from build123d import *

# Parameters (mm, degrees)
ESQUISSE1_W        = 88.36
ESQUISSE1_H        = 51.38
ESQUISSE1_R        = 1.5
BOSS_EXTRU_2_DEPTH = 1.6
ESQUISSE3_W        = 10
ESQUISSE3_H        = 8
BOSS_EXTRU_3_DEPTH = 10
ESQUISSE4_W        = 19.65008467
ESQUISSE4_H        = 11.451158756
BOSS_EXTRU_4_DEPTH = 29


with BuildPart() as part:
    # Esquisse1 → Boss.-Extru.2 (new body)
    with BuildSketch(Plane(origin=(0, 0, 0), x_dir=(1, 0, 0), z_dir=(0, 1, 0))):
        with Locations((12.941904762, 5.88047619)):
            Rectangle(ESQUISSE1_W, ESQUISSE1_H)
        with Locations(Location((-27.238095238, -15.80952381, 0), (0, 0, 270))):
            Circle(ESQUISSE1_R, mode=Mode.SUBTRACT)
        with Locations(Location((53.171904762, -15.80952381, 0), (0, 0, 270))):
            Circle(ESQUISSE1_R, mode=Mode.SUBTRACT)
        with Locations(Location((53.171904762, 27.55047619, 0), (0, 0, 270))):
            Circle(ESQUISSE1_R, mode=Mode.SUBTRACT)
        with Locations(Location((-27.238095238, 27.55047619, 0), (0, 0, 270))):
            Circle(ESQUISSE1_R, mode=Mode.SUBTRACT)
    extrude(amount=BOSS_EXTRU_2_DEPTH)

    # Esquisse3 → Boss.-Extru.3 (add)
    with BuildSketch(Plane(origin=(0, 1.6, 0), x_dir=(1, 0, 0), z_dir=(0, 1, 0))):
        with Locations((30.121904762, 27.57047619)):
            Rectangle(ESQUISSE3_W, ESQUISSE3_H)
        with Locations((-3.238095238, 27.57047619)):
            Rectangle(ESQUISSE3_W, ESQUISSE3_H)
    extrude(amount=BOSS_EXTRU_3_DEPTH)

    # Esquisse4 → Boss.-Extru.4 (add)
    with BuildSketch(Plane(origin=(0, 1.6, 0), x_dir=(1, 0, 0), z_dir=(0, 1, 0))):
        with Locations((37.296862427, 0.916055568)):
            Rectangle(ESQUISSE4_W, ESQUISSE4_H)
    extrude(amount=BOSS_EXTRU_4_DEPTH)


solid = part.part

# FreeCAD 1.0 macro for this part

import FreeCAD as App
import Part
import Sketcher

V = App.Vector

doc = App.newDocument("Part")
body = doc.addObject("PartDesign::Body", "Body")

# Sketch on XZ plane
sketch1 = body.newObject("Sketcher::SketchObject", "Sketch")
sketch1.AttachmentSupport = (doc.getObject("XZ_Plane"), [""])
sketch1.MapMode = "FlatFace"
sketch1.addGeometry([
    Part.LineSegment(V(-31.2, -31.6, 0), V(-31.2, 19.8, 0)),  # 0
    Part.LineSegment(V(-31.2, 19.8, 0), V(57.1, 19.8, 0)),  # 1
    Part.LineSegment(V(57.1, 19.8, 0), V(57.1, -31.6, 0)),  # 2
    Part.LineSegment(V(57.1, -31.6, 0), V(-31.2, -31.6, 0)),  # 3
    Part.Circle(V(-27.2, 15.8, 0), V(0, 0, 1), 1.5),  # 4
    Part.Circle(V(53.2, 15.8, 0), V(0, 0, 1), 1.5),  # 5
    Part.Circle(V(-27.2, -27.6, 0), V(0, 0, 1), 1.5),  # 6
    Part.Circle(V(53.2, -27.6, 0), V(0, 0, 1), 1.5),  # 7
], False)
sketch1.addConstraint([
    Sketcher.Constraint("Coincident", 0, 2, 1, 1),
    Sketcher.Constraint("Coincident", 1, 2, 2, 1),
    Sketcher.Constraint("Coincident", 2, 2, 3, 1),
    Sketcher.Constraint("Coincident", 3, 2, 0, 1),
    Sketcher.Constraint("Vertical", 0),
    Sketcher.Constraint("Horizontal", 1),
    Sketcher.Constraint("Vertical", 2),
    Sketcher.Constraint("Horizontal", 3),
    Sketcher.Constraint("Equal", 4, 5),
    Sketcher.Constraint("Equal", 5, 6),
    Sketcher.Constraint("Equal", 6, 7),
    Sketcher.Constraint("Horizontal", 4, 3, 5, 3),
    Sketcher.Constraint("Horizontal", 6, 3, 7, 3),
    Sketcher.Constraint("Vertical", 4, 3, 6, 3),
    Sketcher.Constraint("Vertical", 5, 3, 7, 3),
    Sketcher.Constraint("Diameter", 4, 3.0),
    Sketcher.Constraint("DistanceX", 0, 2, 4, 3, 4.0),
    Sketcher.Constraint("DistanceY", 4, 3, 0, 2, 4.0),
    Sketcher.Constraint("DistanceX", 1, 1, 1, 2, 88.36),
    Sketcher.Constraint("DistanceY", 0, 1, 0, 2, 51.38),
    Sketcher.Constraint("DistanceX", 4, 3, 5, 3, 80.41),
    Sketcher.Constraint("DistanceY", 6, 3, 4, 3, 43.36),
    Sketcher.Constraint("DistanceX", 4, 3, -1, 1, 27.238095),
    Sketcher.Constraint("DistanceY", -1, 1, 4, 3, 15.809524),
])
pad1 = body.newObject("PartDesign::Pad", "Pad")
pad1.Profile = sketch1
pad1.Length = 1.6
pad1.Reversed = True

# Sketch on XZ plane
sketch2 = body.newObject("Sketcher::SketchObject", "Sketch001")
sketch2.AttachmentSupport = (doc.getObject("XZ_Plane"), [""])
sketch2.MapMode = "FlatFace"
sketch2.AttachmentOffset = App.Placement(V(0, 0, -1.6), App.Rotation())
sketch2.addGeometry([
    Part.LineSegment(V(25, -32, 0), V(25, -24, 0)),  # 0
    Part.LineSegment(V(25, -24, 0), V(35, -24, 0)),  # 1
    Part.LineSegment(V(35, -24, 0), V(35, -32, 0)),  # 2
    Part.LineSegment(V(35, -32, 0), V(25, -32, 0)),  # 3
    Part.LineSegment(V(-8, -32, 0), V(-8, -24, 0)),  # 4
    Part.LineSegment(V(-8, -24, 0), V(2, -24, 0)),  # 5
    Part.LineSegment(V(2, -24, 0), V(2, -32, 0)),  # 6
    Part.LineSegment(V(2, -32, 0), V(-8, -32, 0)),  # 7
], False)
sketch2.addConstraint([
    Sketcher.Constraint("Coincident", 0, 2, 1, 1),
    Sketcher.Constraint("Coincident", 1, 2, 2, 1),
    Sketcher.Constraint("Coincident", 2, 2, 3, 1),
    Sketcher.Constraint("Coincident", 3, 2, 0, 1),
    Sketcher.Constraint("Coincident", 4, 2, 5, 1),
    Sketcher.Constraint("Coincident", 5, 2, 6, 1),
    Sketcher.Constraint("Coincident", 6, 2, 7, 1),
    Sketcher.Constraint("Coincident", 7, 2, 4, 1),
    Sketcher.Constraint("Vertical", 0),
    Sketcher.Constraint("Horizontal", 1),
    Sketcher.Constraint("Vertical", 2),
    Sketcher.Constraint("Horizontal", 3),
    Sketcher.Constraint("Vertical", 4),
    Sketcher.Constraint("Horizontal", 5),
    Sketcher.Constraint("Vertical", 6),
    Sketcher.Constraint("Horizontal", 7),
    Sketcher.Constraint("Horizontal", 1, 2, 4, 2),
    Sketcher.Constraint("Horizontal", 3, 2, 6, 2),
    Sketcher.Constraint("Equal", 3, 5),
    Sketcher.Constraint("DistanceX", 1, 1, 1, 2, 10.0),
    Sketcher.Constraint("DistanceY", 0, 1, 0, 2, 8.0),
    Sketcher.Constraint("DistanceX", 4, 2, 0, 2, 33.36),
    Sketcher.Constraint("DistanceX", -1, 1, 0, 2, 25.121905),
    Sketcher.Constraint("DistanceY", 0, 2, -1, 1, 23.570476),
])
pad2 = body.newObject("PartDesign::Pad", "Pad001")
pad2.Profile = sketch2
pad2.Length = 10
pad2.Reversed = True

# Sketch on XZ plane
sketch3 = body.newObject("Sketcher::SketchObject", "Sketch002")
sketch3.AttachmentSupport = (doc.getObject("XZ_Plane"), [""])
sketch3.MapMode = "FlatFace"
sketch3.AttachmentOffset = App.Placement(V(0, 0, -1.6), App.Rotation())
sketch3.addGeometry([
    Part.LineSegment(V(27, -7, 0), V(27, 5, 0)),
    Part.LineSegment(V(27, 5, 0), V(47, 5, 0)),
    Part.LineSegment(V(47, 5, 0), V(47, -7, 0)),
    Part.LineSegment(V(47, -7, 0), V(27, -7, 0)),
], False)
sketch3.addConstraint([
    Sketcher.Constraint("Coincident", 0, 2, 1, 1),
    Sketcher.Constraint("Coincident", 1, 2, 2, 1),
    Sketcher.Constraint("Coincident", 2, 2, 3, 1),
    Sketcher.Constraint("Coincident", 3, 2, 0, 1),
    Sketcher.Constraint("Vertical", 0),
    Sketcher.Constraint("Horizontal", 1),
    Sketcher.Constraint("Vertical", 2),
    Sketcher.Constraint("Horizontal", 3),
    Sketcher.Constraint("DistanceY", 0, 1, 0, 2, 11.451159),
    Sketcher.Constraint("DistanceX", 1, 1, 1, 2, 19.650085),
    Sketcher.Constraint("DistanceX", -1, 1, 0, 2, 27.47182),
    Sketcher.Constraint("DistanceY", -1, 1, 0, 2, 4.809524),
])
pad3 = body.newObject("PartDesign::Pad", "Pad002")
pad3.Profile = sketch3
pad3.Length = 29
pad3.Reversed = True

doc.recompute()
